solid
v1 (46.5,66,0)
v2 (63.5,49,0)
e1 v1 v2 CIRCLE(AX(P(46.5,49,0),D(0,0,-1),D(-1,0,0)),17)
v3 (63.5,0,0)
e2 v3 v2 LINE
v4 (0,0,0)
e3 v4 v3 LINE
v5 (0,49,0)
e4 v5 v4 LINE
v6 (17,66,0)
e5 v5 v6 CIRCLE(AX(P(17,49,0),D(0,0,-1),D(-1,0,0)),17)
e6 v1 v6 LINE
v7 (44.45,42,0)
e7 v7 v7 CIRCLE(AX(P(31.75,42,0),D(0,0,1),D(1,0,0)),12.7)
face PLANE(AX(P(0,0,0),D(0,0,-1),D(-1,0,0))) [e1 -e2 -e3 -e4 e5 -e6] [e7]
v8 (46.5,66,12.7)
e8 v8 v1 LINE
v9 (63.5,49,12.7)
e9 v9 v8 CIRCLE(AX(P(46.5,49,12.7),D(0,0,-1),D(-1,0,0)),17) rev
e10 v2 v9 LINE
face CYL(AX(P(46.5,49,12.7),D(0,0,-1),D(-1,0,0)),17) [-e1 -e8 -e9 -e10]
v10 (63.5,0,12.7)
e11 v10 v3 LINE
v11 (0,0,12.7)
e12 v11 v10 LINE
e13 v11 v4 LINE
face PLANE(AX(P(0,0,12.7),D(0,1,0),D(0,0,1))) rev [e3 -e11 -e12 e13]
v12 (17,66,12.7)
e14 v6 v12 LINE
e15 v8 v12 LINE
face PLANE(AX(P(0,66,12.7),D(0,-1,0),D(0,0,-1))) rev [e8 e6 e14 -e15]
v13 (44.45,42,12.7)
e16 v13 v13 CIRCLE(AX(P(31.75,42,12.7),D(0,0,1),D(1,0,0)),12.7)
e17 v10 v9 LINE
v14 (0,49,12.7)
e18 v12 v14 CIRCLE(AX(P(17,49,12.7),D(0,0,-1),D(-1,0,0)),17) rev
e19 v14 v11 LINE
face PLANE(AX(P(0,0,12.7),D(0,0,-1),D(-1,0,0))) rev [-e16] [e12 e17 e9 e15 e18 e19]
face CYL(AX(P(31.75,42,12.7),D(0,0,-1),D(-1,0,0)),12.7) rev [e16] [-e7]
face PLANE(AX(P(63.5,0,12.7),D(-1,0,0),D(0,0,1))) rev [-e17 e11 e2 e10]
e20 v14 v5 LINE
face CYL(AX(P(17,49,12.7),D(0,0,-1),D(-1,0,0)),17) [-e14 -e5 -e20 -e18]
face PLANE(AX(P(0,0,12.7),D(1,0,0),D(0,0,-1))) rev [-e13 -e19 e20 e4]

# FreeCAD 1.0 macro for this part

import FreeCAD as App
import Part
import Sketcher

V = App.Vector
Q = App.Units.Quantity


def edges_at(feature, points):
    """Names of the edges that pass closest to the given points."""
    edges = feature.Shape.Edges
    near = lambda p: min(range(len(edges)), key=lambda i: edges[i].distToShape(Part.Vertex(*p))[0])
    return sorted({f"Edge{near(p) + 1}" for p in points})

doc = App.newDocument("Part")
params = doc.addObject("Spreadsheet::Sheet", "Params")
for row, (alias, value) in enumerate([
    ("sketch1_diameter", "1 in"),
    ("sketch1_width", "2.5 in"),
    ("pad1_length", "0.5 in"),
    ("fillet_radius", "17 mm"),
], start=1):
    params.set(f"A{row}", alias)
    params.set(f"B{row}", "=" + value)
    params.setAlias(f"B{row}", alias)

body = doc.addObject("PartDesign::Body", "Body")

sketch1 = body.newObject("Sketcher::SketchObject", "Sketch")
sketch1.AttachmentSupport = (doc.getObject("XY_Plane"), [""])
sketch1.MapMode = "FlatFace"
sketch1.addGeometry([
    Part.LineSegment(V(0, 66, 0), V(0, 0, 0)),
    Part.LineSegment(V(0, 0, 0), V(64, 0, 0)),
    Part.LineSegment(V(64, 0, 0), V(64, 66, 0)),
    Part.LineSegment(V(64, 66, 0), V(0, 66, 0)),
    Part.Circle(V(32, 42, 0), V(0, 0, 1), 13),
], False)
sketch1.addConstraint([
    Sketcher.Constraint("Coincident", 0, 2, 1, 1),
    Sketcher.Constraint("Coincident", 1, 2, 2, 1),
    Sketcher.Constraint("Coincident", 2, 2, 3, 1),
    Sketcher.Constraint("Coincident", 3, 2, 0, 1),
    Sketcher.Constraint("Vertical", 0),
    Sketcher.Constraint("Horizontal", 1),
    Sketcher.Constraint("Vertical", 2),
    Sketcher.Constraint("Horizontal", 3),
    Sketcher.Constraint("Coincident", 0, 2, -1, 1),
    Sketcher.Constraint("Diameter", 4, Q("1 in")),
    Sketcher.Constraint("DistanceX", 1, 1, 1, 2, Q("2.5 in")),
    Sketcher.Constraint("DistanceX", -1, 1, 4, 3, Q("1.25 in")),
    Sketcher.Constraint("DistanceY", 0, 2, 0, 1, 66.0),
    Sketcher.Constraint("DistanceY", -1, 1, 4, 3, 42.0),
])
sketch1.setExpression("Constraints[9]", "Params.sketch1_diameter")
sketch1.setExpression("Constraints[10]", "Params.sketch1_width")
pad1 = body.newObject("PartDesign::Pad", "Pad")
pad1.Profile = sketch1
pad1.setExpression("Length", "Params.pad1_length")
doc.recompute()

fillet = body.newObject("PartDesign::Fillet", "Fillet")
fillet.Base = (pad1, edges_at(pad1, [(0, 66, 6.35), (63.5, 66, 6.35)]))
fillet.setExpression("Radius", "Params.fillet_radius")

doc.recompute()
